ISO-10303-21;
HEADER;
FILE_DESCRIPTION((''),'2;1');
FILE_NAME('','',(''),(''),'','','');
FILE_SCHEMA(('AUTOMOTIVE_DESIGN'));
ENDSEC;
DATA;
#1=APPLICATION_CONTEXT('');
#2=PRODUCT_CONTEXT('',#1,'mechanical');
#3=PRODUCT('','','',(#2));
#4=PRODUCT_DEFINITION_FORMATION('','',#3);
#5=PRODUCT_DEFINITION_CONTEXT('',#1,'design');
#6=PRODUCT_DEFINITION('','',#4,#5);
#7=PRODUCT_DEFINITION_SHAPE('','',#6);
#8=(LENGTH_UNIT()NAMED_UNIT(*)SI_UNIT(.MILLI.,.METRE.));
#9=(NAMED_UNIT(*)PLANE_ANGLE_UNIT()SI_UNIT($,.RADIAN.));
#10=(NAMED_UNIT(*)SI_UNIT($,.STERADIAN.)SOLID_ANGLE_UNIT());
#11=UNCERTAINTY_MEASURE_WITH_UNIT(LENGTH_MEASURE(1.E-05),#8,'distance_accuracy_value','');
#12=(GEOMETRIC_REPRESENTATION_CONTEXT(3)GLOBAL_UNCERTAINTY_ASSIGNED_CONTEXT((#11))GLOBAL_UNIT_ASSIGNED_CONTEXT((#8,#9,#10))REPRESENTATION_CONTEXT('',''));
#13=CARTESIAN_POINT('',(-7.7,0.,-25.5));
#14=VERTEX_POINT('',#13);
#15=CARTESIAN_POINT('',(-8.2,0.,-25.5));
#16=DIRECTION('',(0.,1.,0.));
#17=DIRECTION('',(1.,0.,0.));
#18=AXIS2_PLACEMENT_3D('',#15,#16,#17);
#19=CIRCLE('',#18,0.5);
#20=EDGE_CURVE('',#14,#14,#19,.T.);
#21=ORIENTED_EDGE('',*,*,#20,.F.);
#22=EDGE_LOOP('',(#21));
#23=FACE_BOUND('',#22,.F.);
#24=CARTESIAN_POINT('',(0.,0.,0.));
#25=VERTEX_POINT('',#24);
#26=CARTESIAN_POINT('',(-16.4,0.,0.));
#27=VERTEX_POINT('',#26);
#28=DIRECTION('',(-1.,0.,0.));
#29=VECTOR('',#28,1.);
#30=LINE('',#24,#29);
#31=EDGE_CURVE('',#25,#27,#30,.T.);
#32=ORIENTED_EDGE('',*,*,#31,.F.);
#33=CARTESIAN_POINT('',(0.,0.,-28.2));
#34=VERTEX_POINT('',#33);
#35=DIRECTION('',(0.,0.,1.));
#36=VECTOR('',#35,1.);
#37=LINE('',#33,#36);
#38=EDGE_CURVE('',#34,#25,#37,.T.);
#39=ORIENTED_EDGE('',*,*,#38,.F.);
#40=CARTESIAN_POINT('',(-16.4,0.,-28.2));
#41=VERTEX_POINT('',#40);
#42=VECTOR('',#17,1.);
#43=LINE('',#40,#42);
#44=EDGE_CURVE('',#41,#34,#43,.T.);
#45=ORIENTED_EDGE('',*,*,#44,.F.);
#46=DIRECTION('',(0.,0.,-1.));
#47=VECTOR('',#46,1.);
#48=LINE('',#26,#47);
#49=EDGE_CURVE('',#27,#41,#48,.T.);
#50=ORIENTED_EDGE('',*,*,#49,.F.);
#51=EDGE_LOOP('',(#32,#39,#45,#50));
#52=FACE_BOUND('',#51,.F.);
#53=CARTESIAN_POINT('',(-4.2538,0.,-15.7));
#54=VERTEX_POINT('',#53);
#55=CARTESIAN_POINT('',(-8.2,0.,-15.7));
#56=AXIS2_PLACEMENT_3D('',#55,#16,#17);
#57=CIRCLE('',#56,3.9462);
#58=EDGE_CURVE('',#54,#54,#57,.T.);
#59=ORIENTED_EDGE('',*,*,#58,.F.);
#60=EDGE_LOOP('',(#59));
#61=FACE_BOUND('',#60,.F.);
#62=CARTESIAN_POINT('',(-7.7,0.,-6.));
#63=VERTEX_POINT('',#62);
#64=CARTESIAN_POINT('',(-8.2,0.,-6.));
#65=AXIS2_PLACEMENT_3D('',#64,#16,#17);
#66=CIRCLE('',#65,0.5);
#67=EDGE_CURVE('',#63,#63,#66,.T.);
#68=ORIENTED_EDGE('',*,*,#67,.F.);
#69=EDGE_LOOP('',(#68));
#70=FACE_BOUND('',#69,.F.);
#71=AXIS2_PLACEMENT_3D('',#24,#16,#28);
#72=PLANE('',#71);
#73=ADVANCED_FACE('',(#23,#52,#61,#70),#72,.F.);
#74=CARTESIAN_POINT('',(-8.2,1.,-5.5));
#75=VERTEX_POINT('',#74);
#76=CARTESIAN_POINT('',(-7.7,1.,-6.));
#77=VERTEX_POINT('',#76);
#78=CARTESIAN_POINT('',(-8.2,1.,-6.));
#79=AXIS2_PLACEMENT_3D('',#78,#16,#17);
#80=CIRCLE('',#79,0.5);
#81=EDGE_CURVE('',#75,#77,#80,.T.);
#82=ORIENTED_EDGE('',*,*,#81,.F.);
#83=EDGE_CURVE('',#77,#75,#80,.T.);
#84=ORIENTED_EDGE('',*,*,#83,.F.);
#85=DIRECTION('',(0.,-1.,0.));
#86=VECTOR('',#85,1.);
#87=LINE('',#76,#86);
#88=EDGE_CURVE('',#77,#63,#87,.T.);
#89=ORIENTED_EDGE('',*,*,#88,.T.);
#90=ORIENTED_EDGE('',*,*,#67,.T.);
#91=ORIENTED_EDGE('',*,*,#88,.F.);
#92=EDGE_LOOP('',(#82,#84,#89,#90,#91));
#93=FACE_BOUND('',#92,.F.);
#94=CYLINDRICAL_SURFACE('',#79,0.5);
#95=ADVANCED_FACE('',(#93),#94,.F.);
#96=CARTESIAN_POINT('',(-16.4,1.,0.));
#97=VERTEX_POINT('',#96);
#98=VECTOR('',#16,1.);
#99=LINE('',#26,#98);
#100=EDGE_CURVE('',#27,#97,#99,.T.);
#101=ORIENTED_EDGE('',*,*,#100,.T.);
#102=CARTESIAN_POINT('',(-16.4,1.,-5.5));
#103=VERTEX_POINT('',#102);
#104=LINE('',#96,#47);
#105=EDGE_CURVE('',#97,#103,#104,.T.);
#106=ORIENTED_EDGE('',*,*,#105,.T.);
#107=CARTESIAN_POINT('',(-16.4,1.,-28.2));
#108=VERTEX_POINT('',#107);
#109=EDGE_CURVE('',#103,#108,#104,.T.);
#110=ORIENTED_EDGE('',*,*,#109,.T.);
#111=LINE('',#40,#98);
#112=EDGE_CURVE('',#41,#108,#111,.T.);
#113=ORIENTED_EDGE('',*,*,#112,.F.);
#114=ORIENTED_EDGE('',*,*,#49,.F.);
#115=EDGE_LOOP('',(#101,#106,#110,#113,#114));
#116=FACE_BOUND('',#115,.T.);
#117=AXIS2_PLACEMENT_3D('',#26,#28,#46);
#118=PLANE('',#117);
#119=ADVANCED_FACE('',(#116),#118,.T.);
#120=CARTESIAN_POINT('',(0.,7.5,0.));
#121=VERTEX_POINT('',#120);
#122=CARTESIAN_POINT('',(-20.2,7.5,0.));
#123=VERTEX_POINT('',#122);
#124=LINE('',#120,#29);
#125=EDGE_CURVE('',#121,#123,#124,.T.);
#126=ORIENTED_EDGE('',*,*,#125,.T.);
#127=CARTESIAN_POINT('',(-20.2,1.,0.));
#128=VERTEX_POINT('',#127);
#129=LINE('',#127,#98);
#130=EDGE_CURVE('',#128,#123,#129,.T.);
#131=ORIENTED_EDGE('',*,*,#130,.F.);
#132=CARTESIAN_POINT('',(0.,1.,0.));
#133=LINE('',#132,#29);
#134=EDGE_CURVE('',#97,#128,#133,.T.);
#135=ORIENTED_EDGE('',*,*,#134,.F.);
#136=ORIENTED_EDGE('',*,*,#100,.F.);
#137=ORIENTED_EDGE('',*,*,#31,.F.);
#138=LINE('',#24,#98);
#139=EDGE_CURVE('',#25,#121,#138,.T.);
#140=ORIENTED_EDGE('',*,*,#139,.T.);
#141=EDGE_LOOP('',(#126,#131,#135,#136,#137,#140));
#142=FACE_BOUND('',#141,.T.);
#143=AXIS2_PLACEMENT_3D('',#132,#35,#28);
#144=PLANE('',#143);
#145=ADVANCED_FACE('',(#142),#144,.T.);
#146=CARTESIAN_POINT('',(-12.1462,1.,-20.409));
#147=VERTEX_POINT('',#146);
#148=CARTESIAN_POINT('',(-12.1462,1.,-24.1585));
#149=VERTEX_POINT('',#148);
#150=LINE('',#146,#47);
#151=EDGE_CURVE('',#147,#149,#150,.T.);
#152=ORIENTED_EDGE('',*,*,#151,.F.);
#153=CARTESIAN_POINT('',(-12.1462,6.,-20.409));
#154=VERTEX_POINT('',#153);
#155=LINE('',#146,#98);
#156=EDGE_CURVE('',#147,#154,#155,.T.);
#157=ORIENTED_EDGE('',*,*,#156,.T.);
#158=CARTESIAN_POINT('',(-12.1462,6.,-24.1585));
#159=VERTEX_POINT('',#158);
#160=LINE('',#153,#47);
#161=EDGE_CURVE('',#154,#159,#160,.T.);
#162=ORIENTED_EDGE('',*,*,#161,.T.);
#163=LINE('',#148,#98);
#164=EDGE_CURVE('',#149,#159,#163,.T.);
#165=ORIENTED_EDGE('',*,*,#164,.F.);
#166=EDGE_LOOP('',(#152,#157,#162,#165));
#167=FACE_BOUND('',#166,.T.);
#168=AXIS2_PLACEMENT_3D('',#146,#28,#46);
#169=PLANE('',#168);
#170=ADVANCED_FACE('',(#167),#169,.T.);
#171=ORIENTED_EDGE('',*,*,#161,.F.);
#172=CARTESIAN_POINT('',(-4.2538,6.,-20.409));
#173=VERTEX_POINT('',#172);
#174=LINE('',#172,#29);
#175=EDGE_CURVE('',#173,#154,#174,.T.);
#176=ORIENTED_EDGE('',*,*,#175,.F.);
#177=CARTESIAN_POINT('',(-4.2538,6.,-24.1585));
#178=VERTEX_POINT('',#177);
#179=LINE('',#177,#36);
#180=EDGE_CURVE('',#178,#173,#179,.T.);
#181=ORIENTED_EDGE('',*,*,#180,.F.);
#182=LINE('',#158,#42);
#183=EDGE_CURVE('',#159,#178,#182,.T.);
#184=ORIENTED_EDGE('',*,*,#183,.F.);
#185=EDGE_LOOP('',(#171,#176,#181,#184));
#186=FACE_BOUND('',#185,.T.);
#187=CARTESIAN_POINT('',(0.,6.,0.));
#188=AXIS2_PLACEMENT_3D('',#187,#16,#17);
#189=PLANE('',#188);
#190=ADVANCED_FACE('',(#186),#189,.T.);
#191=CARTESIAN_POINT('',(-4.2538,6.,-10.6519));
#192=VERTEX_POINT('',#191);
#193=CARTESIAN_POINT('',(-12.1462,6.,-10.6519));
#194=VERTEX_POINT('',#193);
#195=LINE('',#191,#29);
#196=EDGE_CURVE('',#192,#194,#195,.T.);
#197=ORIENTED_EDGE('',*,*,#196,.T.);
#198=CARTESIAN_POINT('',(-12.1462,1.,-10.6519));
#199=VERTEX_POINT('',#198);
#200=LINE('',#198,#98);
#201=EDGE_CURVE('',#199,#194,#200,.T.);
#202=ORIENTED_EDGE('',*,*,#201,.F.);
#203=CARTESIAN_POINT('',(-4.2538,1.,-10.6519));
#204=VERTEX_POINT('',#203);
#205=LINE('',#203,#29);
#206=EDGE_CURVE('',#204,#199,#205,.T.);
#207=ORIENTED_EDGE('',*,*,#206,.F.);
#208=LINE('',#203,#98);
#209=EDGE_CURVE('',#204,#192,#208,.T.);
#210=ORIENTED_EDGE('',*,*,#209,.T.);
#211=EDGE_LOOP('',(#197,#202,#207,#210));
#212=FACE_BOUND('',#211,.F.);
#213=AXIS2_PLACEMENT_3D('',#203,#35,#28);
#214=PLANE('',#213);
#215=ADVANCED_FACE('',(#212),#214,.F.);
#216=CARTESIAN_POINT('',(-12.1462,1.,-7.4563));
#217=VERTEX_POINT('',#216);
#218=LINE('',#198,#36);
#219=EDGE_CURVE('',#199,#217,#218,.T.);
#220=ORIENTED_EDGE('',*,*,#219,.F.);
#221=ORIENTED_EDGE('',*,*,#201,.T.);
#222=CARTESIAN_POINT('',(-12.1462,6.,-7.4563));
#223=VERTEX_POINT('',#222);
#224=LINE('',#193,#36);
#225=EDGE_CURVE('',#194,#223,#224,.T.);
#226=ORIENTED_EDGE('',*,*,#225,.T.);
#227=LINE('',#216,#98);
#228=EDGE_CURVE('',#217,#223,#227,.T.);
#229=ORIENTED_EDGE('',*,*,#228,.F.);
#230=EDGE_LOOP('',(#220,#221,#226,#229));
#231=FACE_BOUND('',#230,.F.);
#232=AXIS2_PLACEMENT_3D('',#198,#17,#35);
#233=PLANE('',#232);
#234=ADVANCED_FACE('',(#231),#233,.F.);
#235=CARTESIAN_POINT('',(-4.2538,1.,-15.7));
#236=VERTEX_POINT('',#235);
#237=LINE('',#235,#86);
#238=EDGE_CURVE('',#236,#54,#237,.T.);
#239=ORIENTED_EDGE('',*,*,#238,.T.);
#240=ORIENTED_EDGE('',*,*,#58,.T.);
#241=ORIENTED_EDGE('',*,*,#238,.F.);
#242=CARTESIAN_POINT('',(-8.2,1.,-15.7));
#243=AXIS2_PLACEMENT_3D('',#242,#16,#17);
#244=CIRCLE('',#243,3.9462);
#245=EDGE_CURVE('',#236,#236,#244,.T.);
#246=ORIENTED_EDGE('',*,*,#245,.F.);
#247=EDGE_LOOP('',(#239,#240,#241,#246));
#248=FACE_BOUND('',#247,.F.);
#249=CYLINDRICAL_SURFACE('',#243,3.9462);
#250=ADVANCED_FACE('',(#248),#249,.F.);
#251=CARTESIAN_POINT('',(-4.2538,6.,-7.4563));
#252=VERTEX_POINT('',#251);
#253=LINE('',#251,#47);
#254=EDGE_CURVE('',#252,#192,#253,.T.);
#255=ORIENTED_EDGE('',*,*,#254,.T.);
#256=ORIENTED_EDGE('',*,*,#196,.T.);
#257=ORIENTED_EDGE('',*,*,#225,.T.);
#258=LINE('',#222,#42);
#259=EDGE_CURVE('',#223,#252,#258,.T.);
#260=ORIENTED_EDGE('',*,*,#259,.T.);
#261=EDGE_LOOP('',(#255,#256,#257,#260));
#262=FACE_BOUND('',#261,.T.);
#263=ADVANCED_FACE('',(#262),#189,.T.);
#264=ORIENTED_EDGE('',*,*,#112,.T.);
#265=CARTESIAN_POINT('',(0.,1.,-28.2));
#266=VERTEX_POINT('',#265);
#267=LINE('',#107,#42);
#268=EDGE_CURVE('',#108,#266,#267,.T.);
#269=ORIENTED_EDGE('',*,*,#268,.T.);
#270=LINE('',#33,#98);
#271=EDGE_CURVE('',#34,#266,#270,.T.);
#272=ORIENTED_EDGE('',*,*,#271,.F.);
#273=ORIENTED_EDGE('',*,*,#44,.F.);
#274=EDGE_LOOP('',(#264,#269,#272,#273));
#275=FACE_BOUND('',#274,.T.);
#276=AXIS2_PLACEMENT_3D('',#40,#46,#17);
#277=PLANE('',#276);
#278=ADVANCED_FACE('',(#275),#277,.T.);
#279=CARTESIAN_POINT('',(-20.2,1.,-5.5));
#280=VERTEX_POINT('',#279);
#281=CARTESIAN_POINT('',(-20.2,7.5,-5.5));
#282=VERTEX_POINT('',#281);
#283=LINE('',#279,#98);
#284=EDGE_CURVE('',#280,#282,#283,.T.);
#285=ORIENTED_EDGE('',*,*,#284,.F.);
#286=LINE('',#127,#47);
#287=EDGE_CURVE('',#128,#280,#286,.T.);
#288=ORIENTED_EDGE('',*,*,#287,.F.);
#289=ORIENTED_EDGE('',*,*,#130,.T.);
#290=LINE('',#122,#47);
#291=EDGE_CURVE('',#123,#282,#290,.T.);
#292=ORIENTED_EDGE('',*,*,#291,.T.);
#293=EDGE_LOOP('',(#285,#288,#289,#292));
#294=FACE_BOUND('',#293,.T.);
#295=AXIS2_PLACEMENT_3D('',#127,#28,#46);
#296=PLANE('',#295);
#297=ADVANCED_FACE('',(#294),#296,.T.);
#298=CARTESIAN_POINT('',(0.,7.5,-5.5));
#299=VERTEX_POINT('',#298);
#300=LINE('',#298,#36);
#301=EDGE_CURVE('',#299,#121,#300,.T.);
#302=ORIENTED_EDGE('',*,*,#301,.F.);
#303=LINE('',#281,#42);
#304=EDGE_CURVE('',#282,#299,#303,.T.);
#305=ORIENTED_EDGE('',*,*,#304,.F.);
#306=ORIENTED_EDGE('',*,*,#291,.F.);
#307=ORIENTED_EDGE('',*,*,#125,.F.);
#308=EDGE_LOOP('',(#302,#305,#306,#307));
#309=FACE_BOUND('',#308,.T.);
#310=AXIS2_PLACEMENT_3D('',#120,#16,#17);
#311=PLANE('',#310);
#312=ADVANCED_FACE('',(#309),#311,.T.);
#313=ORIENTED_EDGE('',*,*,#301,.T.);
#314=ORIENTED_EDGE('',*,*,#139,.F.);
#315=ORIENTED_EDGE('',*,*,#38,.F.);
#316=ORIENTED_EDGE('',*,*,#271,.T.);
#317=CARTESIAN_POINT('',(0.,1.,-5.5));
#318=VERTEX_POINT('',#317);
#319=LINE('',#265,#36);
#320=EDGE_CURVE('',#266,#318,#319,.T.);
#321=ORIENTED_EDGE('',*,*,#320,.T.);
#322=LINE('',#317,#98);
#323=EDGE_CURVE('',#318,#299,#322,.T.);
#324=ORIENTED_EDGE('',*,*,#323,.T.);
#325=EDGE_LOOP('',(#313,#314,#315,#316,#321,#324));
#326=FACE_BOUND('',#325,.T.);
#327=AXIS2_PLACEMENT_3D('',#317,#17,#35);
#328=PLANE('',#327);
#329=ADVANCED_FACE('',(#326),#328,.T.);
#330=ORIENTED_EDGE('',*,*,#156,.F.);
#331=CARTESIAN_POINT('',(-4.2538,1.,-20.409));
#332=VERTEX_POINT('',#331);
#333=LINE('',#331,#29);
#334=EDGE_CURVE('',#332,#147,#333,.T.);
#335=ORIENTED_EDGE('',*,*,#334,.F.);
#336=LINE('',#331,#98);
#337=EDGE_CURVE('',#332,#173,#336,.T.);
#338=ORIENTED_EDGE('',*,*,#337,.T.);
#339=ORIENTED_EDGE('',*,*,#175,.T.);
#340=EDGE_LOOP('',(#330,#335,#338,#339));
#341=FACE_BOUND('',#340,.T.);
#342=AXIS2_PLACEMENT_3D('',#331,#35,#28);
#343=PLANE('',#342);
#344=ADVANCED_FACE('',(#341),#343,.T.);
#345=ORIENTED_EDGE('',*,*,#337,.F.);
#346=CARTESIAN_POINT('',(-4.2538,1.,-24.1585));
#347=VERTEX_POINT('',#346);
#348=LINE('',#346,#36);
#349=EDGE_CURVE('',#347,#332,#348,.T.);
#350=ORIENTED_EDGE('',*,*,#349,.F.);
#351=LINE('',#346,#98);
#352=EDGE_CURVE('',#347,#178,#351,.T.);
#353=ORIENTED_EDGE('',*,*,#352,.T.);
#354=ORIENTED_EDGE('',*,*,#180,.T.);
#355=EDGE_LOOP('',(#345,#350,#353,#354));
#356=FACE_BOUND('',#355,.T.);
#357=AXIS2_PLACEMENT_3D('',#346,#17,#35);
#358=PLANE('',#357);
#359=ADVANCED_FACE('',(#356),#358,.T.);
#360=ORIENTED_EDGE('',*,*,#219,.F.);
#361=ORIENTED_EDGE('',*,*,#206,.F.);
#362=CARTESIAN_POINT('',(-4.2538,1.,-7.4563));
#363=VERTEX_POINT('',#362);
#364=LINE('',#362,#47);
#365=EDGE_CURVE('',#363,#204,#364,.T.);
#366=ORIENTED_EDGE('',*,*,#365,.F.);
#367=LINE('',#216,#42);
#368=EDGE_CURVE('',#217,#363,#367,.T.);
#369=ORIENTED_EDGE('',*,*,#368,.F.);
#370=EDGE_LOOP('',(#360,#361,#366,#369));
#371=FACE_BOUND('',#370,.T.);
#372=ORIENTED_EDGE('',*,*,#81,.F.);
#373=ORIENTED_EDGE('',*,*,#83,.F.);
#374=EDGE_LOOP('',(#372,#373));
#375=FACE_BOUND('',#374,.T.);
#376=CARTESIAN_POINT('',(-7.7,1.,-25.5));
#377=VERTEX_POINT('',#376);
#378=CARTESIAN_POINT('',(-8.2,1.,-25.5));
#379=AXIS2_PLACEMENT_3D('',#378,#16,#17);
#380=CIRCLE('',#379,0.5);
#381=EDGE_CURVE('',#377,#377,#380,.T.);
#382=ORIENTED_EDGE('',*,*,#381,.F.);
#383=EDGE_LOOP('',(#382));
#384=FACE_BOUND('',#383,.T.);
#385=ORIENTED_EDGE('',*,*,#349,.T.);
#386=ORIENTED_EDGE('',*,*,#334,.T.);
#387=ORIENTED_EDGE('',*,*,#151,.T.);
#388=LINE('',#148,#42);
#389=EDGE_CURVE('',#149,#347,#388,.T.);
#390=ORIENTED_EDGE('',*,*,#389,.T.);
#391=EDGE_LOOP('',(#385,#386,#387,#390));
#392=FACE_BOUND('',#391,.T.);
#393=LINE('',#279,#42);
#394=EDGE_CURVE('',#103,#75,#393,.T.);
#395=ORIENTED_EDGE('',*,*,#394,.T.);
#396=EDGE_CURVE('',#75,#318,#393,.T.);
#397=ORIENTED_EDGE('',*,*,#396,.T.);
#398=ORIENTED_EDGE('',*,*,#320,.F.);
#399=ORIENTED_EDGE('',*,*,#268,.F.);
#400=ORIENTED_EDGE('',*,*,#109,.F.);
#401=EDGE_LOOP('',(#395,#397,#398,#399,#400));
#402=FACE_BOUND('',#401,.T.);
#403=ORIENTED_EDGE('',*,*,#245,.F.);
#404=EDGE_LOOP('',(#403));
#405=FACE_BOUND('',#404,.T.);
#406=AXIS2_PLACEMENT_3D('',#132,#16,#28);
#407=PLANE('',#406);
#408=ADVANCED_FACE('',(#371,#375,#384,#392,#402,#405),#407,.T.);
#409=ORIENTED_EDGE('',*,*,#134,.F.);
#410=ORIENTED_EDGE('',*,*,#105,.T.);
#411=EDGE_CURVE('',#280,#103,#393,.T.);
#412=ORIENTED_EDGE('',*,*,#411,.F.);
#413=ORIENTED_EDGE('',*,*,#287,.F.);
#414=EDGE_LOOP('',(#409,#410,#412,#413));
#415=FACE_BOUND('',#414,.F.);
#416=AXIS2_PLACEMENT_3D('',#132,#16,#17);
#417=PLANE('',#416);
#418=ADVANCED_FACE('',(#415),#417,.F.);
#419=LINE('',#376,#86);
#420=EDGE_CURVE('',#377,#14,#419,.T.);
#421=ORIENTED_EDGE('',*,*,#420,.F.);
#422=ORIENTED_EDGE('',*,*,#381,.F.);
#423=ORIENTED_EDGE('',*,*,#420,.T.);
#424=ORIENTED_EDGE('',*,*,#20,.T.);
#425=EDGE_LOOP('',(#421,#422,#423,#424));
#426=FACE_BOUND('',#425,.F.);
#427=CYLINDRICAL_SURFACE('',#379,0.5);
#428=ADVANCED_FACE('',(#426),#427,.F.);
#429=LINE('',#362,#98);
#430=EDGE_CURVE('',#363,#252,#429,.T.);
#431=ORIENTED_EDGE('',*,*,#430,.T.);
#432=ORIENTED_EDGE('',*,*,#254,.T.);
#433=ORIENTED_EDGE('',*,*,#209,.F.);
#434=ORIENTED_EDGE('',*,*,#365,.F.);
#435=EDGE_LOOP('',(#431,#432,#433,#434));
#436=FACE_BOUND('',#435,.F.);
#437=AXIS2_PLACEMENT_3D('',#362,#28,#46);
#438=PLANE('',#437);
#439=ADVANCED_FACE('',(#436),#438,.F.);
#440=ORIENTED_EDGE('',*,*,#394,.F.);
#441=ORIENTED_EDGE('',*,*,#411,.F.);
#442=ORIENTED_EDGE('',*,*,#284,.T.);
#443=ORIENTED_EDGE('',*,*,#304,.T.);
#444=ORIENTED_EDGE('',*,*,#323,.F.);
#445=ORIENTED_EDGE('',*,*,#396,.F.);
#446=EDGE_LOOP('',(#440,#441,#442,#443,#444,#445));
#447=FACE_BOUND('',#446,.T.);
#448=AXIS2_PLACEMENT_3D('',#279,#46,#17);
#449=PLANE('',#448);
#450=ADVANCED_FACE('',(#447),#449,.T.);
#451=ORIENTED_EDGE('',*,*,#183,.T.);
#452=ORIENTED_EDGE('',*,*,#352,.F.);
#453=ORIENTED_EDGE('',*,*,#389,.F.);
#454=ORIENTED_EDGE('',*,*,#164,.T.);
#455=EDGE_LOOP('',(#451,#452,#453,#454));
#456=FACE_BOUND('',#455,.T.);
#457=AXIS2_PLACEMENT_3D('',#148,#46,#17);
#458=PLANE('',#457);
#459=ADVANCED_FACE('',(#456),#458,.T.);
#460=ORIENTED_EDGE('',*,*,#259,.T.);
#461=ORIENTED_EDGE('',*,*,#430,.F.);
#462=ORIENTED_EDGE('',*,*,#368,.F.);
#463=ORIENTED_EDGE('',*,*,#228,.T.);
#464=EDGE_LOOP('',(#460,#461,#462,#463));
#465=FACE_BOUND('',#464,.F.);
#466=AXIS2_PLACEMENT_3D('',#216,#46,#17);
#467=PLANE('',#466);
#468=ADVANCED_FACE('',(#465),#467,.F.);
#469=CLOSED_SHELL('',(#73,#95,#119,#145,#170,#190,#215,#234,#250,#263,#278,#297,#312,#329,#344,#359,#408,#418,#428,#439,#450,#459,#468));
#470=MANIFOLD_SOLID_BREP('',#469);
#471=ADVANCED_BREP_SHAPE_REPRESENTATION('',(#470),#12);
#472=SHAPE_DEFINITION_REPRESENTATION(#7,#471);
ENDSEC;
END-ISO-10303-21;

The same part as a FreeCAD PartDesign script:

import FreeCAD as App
import Part
import Sketcher

V = App.Vector


def add_polygon(sketch, points):
    """Adds a closed chain of lines whose ends are joined by coincident constraints."""
    first, n = sketch.GeometryCount, len(points)
    for a, b in zip(points, points[1:] + points[:1]):
        sketch.addGeometry(Part.LineSegment(App.Vector(*a, 0), App.Vector(*b, 0)), False)
    for i in range(n):
        sketch.addConstraint(Sketcher.Constraint("Coincident", first + i, 2, first + (i + 1) % n, 1))

doc = App.newDocument("Part")
body = doc.addObject("PartDesign::Body", "Body")

# Sketch on XZ plane
sketch1 = body.newObject("Sketcher::SketchObject", "Sketch")
sketch1.AttachmentSupport = (doc.getObject("XZ_Plane"), [""])
sketch1.MapMode = "FlatFace"
add_polygon(sketch1, [(-16, 0), (0, 0), (0, -28), (-16, -28)])  # lines 0-3
sketch1.addConstraint([
    Sketcher.Constraint("Horizontal", 0),
    Sketcher.Constraint("Vertical", 1),
    Sketcher.Constraint("Horizontal", 2),
    Sketcher.Constraint("Vertical", 3),
    Sketcher.Constraint("Coincident", 0, 2, -1, 1),
    Sketcher.Constraint("DistanceX", 0, 1, 0, 2, 16.4),
    Sketcher.Constraint("DistanceY", 1, 2, 1, 1, 28.2),
])
pad1 = body.newObject("PartDesign::Pad", "Pad")
pad1.Profile = sketch1
pad1.Length = 1
pad1.Reversed = True

# Sketch on XZ plane
sketch2 = body.newObject("Sketcher::SketchObject", "Sketch001")
sketch2.AttachmentSupport = (doc.getObject("XZ_Plane"), [""])
sketch2.MapMode = "FlatFace"
sketch2.AttachmentOffset = App.Placement(V(0, 0, -1), App.Rotation())
sketch2.addGeometry([
    Part.Circle(V(-8.2, -6, 0), V(0, 0, 1), 0.5),
    Part.Circle(V(-8.2, -25.5, 0), V(0, 0, 1), 0.5),
    Part.Circle(V(-8.2, -15.7, 0), V(0, 0, 1), 3.9),
], False)
sketch2.addConstraint([
    Sketcher.Constraint("Equal", 0, 1),
    Sketcher.Constraint("Vertical", 0, 3, 1, 3),
    Sketcher.Constraint("Vertical", 1, 3, 2, 3),
    Sketcher.Constraint("Diameter", 0, 1.0),
    Sketcher.Constraint("DistanceY", 0, 3, -1, 1, 6.0),
    Sketcher.Constraint("DistanceX", 0, 3, -1, 1, 8.2),
    Sketcher.Constraint("DistanceY", 1, 3, 0, 3, 19.5),
    Sketcher.Constraint("DistanceY", 2, 3, 0, 3, 9.7),
    Sketcher.Constraint("Diameter", 2, 7.8924),
])
pocket1 = body.newObject("PartDesign::Pocket", "Pocket")
pocket1.Profile = sketch2
pocket1.Length = 1
pocket1.Reversed = True

# Sketch on XZ plane
sketch3 = body.newObject("Sketcher::SketchObject", "Sketch002")
sketch3.AttachmentSupport = (doc.getObject("XZ_Plane"), [""])
sketch3.MapMode = "FlatFace"
sketch3.AttachmentOffset = App.Placement(V(0, 0, -1), App.Rotation())
add_polygon(sketch3, [(-20, 0), (0, 0), (0, -6), (-20, -6)])  # lines 0-3
sketch3.addConstraint([
    Sketcher.Constraint("Horizontal", 0),
    Sketcher.Constraint("Vertical", 1),
    Sketcher.Constraint("Horizontal", 2),
    Sketcher.Constraint("Vertical", 3),
    Sketcher.Constraint("Coincident", 0, 2, -1, 1),
    Sketcher.Constraint("DistanceX", 0, 1, 0, 2, 20.2),
    Sketcher.Constraint("DistanceY", 1, 2, 1, 1, 5.5),
])
pad2 = body.newObject("PartDesign::Pad", "Pad001")
pad2.Profile = sketch3
pad2.Length = 6.5
pad2.Reversed = True

# Sketch on XZ plane
sketch4 = body.newObject("Sketcher::SketchObject", "Sketch003")
sketch4.AttachmentSupport = (doc.getObject("XZ_Plane"), [""])
sketch4.MapMode = "FlatFace"
sketch4.AttachmentOffset = App.Placement(V(0, 0, -1), App.Rotation())
add_polygon(sketch4, [(-12.1, -10.7), (-12.1, -7.5), (-4.3, -7.5), (-4.3, -10.7)])  # lines 0-3
add_polygon(sketch4, [(-4.3, -24.2), (-12.1, -24.2), (-12.1, -20.4), (-4.3, -20.4)])  # lines 4-7
sketch4.addConstraint([
    Sketcher.Constraint("Vertical", 0),
    Sketcher.Constraint("Horizontal", 1),
    Sketcher.Constraint("Vertical", 2),
    Sketcher.Constraint("Horizontal", 3),
    Sketcher.Constraint("Horizontal", 4),
    Sketcher.Constraint("Vertical", 5),
    Sketcher.Constraint("Horizontal", 6),
    Sketcher.Constraint("Vertical", 7),
    Sketcher.Constraint("Vertical", 3, 2, 4, 2),
    Sketcher.Constraint("Vertical", 2, 2, 6, 2),
    Sketcher.Constraint("DistanceX", 1, 1, 1, 2, 7.8924),
    Sketcher.Constraint("DistanceY", 0, 1, 0, 2, 3.1956),
    Sketcher.Constraint("DistanceY", 5, 1, 5, 2, 3.7495),
    Sketcher.Constraint("DistanceY", 2, 2, -1, 1, 10.652),
    Sketcher.Constraint("DistanceY", 5, 2, -1, 1, 20.409),
    Sketcher.Constraint("DistanceX", 0, 2, -1, 1, 12.1462),
])
pad3 = body.newObject("PartDesign::Pad", "Pad002")
pad3.Profile = sketch4
pad3.Length = 5
pad3.Reversed = True

doc.recompute()
